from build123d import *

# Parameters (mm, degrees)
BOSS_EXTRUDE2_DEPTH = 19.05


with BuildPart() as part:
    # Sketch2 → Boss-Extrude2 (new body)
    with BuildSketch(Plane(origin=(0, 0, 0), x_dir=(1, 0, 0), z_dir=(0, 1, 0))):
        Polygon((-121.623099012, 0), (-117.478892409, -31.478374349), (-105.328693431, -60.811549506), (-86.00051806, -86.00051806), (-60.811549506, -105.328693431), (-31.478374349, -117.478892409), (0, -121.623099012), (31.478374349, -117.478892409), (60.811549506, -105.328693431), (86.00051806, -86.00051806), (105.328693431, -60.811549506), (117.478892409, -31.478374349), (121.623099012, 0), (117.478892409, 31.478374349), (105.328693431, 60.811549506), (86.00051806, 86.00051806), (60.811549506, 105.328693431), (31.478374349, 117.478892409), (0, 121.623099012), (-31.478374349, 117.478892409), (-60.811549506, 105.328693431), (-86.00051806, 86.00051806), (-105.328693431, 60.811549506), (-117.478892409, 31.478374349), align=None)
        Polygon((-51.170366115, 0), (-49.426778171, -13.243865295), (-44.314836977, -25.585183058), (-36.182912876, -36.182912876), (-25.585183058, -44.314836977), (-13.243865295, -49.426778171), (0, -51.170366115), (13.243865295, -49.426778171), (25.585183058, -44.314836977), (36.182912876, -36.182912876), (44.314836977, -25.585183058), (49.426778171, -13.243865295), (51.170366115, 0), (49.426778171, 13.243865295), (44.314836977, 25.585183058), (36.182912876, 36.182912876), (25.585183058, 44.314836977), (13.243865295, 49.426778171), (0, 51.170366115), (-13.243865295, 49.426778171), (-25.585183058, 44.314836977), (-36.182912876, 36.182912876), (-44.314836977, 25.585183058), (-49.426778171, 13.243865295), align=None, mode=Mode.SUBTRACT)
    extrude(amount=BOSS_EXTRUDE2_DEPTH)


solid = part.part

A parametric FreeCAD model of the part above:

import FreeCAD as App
import Part
import Sketcher
from FreeCAD import Vector
Q = App.Units.Quantity


def add_polygon(sketch, points):
    """Adds a closed chain of lines whose ends are joined by coincident constraints."""
    first, n = sketch.GeometryCount, len(points)
    for a, b in zip(points, points[1:] + points[:1]):
        sketch.addGeometry(Part.LineSegment(App.Vector(*a, 0), App.Vector(*b, 0)), False)
    for i in range(n):
        sketch.addConstraint(Sketcher.Constraint("Coincident", first + i, 2, first + (i + 1) % n, 1))

doc = App.newDocument("Part")
params = doc.addObject("Spreadsheet::Sheet", "Params")
for row, (alias, value) in enumerate([
    ("sketch1_length", "1.25 in"),
    ("pad1_length", "0.75 in"),
], start=1):
    params.set(f"A{row}", alias)
    params.set(f"B{row}", "=" + value)
    params.setAlias(f"B{row}", alias)

body = doc.addObject("PartDesign::Body", "Body")

sketch1 = body.newObject("Sketcher::SketchObject", "Sketch")
sketch1.AttachmentSupport = (doc.getObject("XZ_Plane"), [""])
sketch1.MapMode = "FlatFace"
add_polygon(sketch1, [(-122, 0), (-117, 31), (-105, 61), (-86, 86), (-61, 105), (-31, 117), (0, 122), (31, 117), (61, 105), (86, 86), (105, 61), (117, 31), (122, 0), (117, -31), (105, -61), (86, -86), (61, -105), (31, -117), (0, -122), (-31, -117), (-61, -105), (-86, -86), (-105, -61), (-117, -31)])
add_polygon(sketch1, [(-49, 13), (-51, 0), (-49, -13), (-44, -26), (-36, -36), (-26, -44), (-13, -49), (0, -51), (13, -49), (26, -44), (36, -36), (44, -26), (49, -13), (51, 0), (49, 13), (44, 26), (36, 36), (26, 44), (13, 49), (0, 51), (-13, 49), (-26, 44), (-36, 36), (-44, 26)])
sketch1.addConstraint(Sketcher.Constraint("Symmetric", 0, 2, 12, 2, -1, 1))
sketch1.addConstraint(Sketcher.Constraint("Symmetric", 1, 2, 13, 2, -1, 1))
sketch1.addConstraint(Sketcher.Constraint("Symmetric", 2, 2, 14, 2, -1, 1))
sketch1.addConstraint(Sketcher.Constraint("Symmetric", 3, 2, 15, 2, -1, 1))
sketch1.addConstraint(Sketcher.Constraint("Symmetric", 4, 2, 16, 2, -1, 1))
sketch1.addConstraint(Sketcher.Constraint("Symmetric", 5, 2, 17, 2, -1, 1))
sketch1.addConstraint(Sketcher.Constraint("Symmetric", 6, 2, 18, 2, -1, 1))
sketch1.addConstraint(Sketcher.Constraint("Symmetric", 7, 2, 19, 2, -1, 1))
sketch1.addConstraint(Sketcher.Constraint("Symmetric", 8, 2, 20, 2, -1, 1))
sketch1.addConstraint(Sketcher.Constraint("Symmetric", 9, 2, 21, 2, -1, 1))
sketch1.addConstraint(Sketcher.Constraint("Symmetric", 10, 2, 22, 2, -1, 1))
sketch1.addConstraint(Sketcher.Constraint("Symmetric", 11, 2, 23, 2, -1, 1))
sketch1.addConstraint(Sketcher.Constraint("Symmetric", 24, 2, 36, 2, -1, 1))
sketch1.addConstraint(Sketcher.Constraint("Symmetric", 25, 2, 37, 2, -1, 1))
sketch1.addConstraint(Sketcher.Constraint("Symmetric", 26, 2, 38, 2, -1, 1))
sketch1.addConstraint(Sketcher.Constraint("Symmetric", 27, 2, 39, 2, -1, 1))
sketch1.addConstraint(Sketcher.Constraint("Symmetric", 28, 2, 40, 2, -1, 1))
sketch1.addConstraint(Sketcher.Constraint("Symmetric", 29, 2, 41, 2, -1, 1))
sketch1.addConstraint(Sketcher.Constraint("Symmetric", 30, 2, 42, 2, -1, 1))
sketch1.addConstraint(Sketcher.Constraint("Symmetric", 31, 2, 43, 2, -1, 1))
sketch1.addConstraint(Sketcher.Constraint("Symmetric", 32, 2, 44, 2, -1, 1))
sketch1.addConstraint(Sketcher.Constraint("Symmetric", 33, 2, 45, 2, -1, 1))
sketch1.addConstraint(Sketcher.Constraint("Symmetric", 34, 2, 46, 2, -1, 1))
sketch1.addConstraint(Sketcher.Constraint("Symmetric", 35, 2, 47, 2, -1, 1))
sketch1.addConstraint(Sketcher.Constraint("Symmetric", 4, 2, 6, 2, -2))
sketch1.addConstraint(Sketcher.Constraint("Symmetric", 3, 2, 7, 2, -2))
sketch1.addConstraint(Sketcher.Constraint("Symmetric", 2, 2, 8, 2, -2))
sketch1.addConstraint(Sketcher.Constraint("Symmetric", 1, 2, 9, 2, -2))
sketch1.addConstraint(Sketcher.Constraint("Symmetric", 0, 2, 10, 2, -2))
sketch1.addConstraint(Sketcher.Constraint("Symmetric", 29, 2, 31, 2, -2))
sketch1.addConstraint(Sketcher.Constraint("Symmetric", 28, 2, 32, 2, -2))
sketch1.addConstraint(Sketcher.Constraint("Symmetric", 27, 2, 33, 2, -2))
sketch1.addConstraint(Sketcher.Constraint("Symmetric", 26, 2, 34, 2, -2))
sketch1.addConstraint(Sketcher.Constraint("Symmetric", 25, 2, 35, 2, -2))
sketch1.addConstraint(Sketcher.Constraint("PointOnObject", 5, 2, -2))
sketch1.addConstraint(Sketcher.Constraint("PointOnObject", 11, 2, -1))
sketch1.addConstraint(Sketcher.Constraint("PointOnObject", 24, 2, -1))
sketch1.addConstraint(Sketcher.Constraint("PointOnObject", 30, 2, -2))
sketch1.addConstraint(Sketcher.Constraint("Perpendicular", 0, 6))
sketch1.addConstraint(Sketcher.Constraint("Perpendicular", 1, 7))
sketch1.addConstraint(Sketcher.Constraint("Perpendicular", 2, 8))
sketch1.addConstraint(Sketcher.Constraint("Perpendicular", 18, 24))
sketch1.addConstraint(Sketcher.Constraint("Parallel", 22, 26))
sketch1.addConstraint(Sketcher.Constraint("Parallel", 21, 27))
sketch1.addConstraint(Sketcher.Constraint("Parallel", 20, 28))
sketch1.addConstraint(Sketcher.Constraint("Parallel", 19, 29))
sketch1.addConstraint(Sketcher.Constraint("Perpendicular", 24, 30))
sketch1.addConstraint(Sketcher.Constraint("Equal", 0, 1))
sketch1.addConstraint(Sketcher.Constraint("Equal", 1, 2))
sketch1.addConstraint(Sketcher.Constraint("Equal", 2, 3))
sketch1.addConstraint(Sketcher.Constraint("Equal", 3, 4))
sketch1.addConstraint(Sketcher.Constraint("Equal", 4, 5))
sketch1.addConstraint(Sketcher.Constraint("Equal", 25, 26))
sketch1.addConstraint(Sketcher.Constraint("Equal", 26, 27))
sketch1.addConstraint(Sketcher.Constraint("Equal", 27, 28))
sketch1.addConstraint(Sketcher.Constraint("Equal", 28, 29))
sketch1.addConstraint(Sketcher.Constraint("Equal", 29, 30))
sketch1.addConstraint(Sketcher.Constraint("Angle", 0, Q("82.5 deg")))
sketch1.addConstraint(Sketcher.Constraint("Angle", 1, Q("67.5 deg")))
sketch1.addConstraint(Sketcher.Constraint("Angle", 2, Q("52.5 deg")))
sketch1.addConstraint(Sketcher.Constraint("Distance", 0, Q("1.25 in")))
sketch1.addConstraint(Sketcher.Constraint("DistanceX", 24, 2, 29, 2, 37.926501))
sketch1.setExpression("Constraints[108]", "Params.sketch1_length")
pad1 = body.newObject("PartDesign::Pad", "Pad")
pad1.Profile = sketch1
pad1.setExpression("Length", "Params.pad1_length")
pad1.Reversed = True

doc.recompute()
